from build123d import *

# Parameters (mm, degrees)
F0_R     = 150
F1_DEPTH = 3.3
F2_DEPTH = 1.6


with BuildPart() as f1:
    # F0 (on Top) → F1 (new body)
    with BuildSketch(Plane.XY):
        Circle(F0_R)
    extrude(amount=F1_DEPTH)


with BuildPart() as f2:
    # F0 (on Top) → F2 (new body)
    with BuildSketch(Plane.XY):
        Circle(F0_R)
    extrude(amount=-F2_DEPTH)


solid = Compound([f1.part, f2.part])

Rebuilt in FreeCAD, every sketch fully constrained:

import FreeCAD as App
import Part
import Sketcher
from FreeCAD import Vector

doc = App.newDocument("Part")
body = doc.addObject("PartDesign::Body", "Body")

# Sketch on XY plane
sketch1 = body.newObject("Sketcher::SketchObject", "Sketch")
sketch1.AttachmentSupport = (doc.getObject("XY_Plane"), [""])
sketch1.MapMode = "FlatFace"
sketch1.addGeometry(Part.Circle(Vector(0, 0, 0), Vector(0, 0, 1), 150), False)
sketch1.addConstraint(Sketcher.Constraint("Coincident", 0, 3, -1, 1))
sketch1.addConstraint(Sketcher.Constraint("Diameter", 0, 300.0))
pad1 = body.newObject("PartDesign::Pad", "Pad")
pad1.Profile = sketch1
pad1.Length = 3.3
body2 = doc.addObject("PartDesign::Body", "Body001")

# Sketch on XY plane
sketch2 = body2.newObject("Sketcher::SketchObject", "Sketch001")
sketch2.AttachmentSupport = (doc.getObject("XY_Plane001"), [""])
sketch2.MapMode = "FlatFace"
sketch2.addGeometry(Part.Circle(Vector(0, 0, 0), Vector(0, 0, 1), 150), False)
sketch2.addConstraint(Sketcher.Constraint("Coincident", 0, 3, -1, 1))
sketch2.addConstraint(Sketcher.Constraint("Diameter", 0, 300.0))
pad2 = body2.newObject("PartDesign::Pad", "Pad001")
pad2.Profile = sketch2
pad2.Length = 1.6
pad2.Reversed = True

doc.recompute()
